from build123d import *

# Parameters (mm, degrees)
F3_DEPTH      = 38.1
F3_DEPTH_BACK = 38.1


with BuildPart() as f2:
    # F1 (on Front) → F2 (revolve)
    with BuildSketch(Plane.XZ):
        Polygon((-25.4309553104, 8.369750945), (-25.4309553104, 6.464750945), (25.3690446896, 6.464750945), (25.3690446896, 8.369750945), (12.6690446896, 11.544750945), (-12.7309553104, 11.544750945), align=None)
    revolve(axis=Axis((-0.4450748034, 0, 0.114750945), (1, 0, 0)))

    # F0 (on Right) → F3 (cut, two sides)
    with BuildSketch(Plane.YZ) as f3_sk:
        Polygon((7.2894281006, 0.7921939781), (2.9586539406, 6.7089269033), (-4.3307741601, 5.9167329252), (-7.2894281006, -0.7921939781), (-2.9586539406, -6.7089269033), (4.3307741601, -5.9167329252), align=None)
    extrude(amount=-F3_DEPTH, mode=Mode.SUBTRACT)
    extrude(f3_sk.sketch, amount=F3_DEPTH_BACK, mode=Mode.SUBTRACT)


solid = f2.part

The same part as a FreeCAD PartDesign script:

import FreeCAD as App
import Part
import Sketcher
from FreeCAD import Vector
Q = App.Units.Quantity

doc = App.newDocument("Part")
body = doc.addObject("PartDesign::Body", "Body")

sketch1 = body.newObject("Sketcher::SketchObject", "Sketch")
sketch1.AttachmentSupport = (doc.getObject("XZ_Plane"), [""])
sketch1.MapMode = "FlatFace"
sketch1.addGeometry([
    Part.LineSegment(Vector(-25.4, 8.4, 0), Vector(-25.4, 6.5, 0)),
    Part.LineSegment(Vector(-25.4, 6.5, 0), Vector(25.4, 6.5, 0)),
    Part.LineSegment(Vector(25.4, 6.5, 0), Vector(25.4, 8.4, 0)),
    Part.LineSegment(Vector(25.4, 8.4, 0), Vector(12.7, 11.5, 0)),
    Part.LineSegment(Vector(12.7, 11.5, 0), Vector(-12.7, 11.5, 0)),
    Part.LineSegment(Vector(-12.7, 11.5, 0), Vector(-25.4, 8.4, 0)),
], False)
sketch1.addGeometry(Part.LineSegment(Vector(-25.4, 0.1, 0), Vector(25.4, 0.1, 0)), True)
sketch1.addConstraint([
    Sketcher.Constraint("Coincident", 0, 2, 1, 1),
    Sketcher.Constraint("Coincident", 1, 2, 2, 1),
    Sketcher.Constraint("Coincident", 2, 2, 3, 1),
    Sketcher.Constraint("Coincident", 3, 2, 4, 1),
    Sketcher.Constraint("Coincident", 4, 2, 5, 1),
    Sketcher.Constraint("Coincident", 5, 2, 0, 1),
    Sketcher.Constraint("Vertical", 0),
    Sketcher.Constraint("Horizontal", 1),
    Sketcher.Constraint("Vertical", 2),
    Sketcher.Constraint("Horizontal", 4),
    Sketcher.Constraint("Horizontal", 6),
    Sketcher.Constraint("Horizontal", 2, 2, 5, 2),
    Sketcher.Constraint("Vertical", 5, 2, 6, 1),
    Sketcher.Constraint("Vertical", 2, 2, 6, 2),
    Sketcher.Constraint("Equal", 3, 5),
    Sketcher.Constraint("DistanceX", 1, 1, 1, 2, Q("2 in")),
    Sketcher.Constraint("DistanceX", 4, 2, 4, 1, Q("1 in")),
    Sketcher.Constraint("DistanceY", 1, 2, 3, 2, Q("0.2 in")),
    Sketcher.Constraint("DistanceY", 0, 2, 0, 1, Q("0.075 in")),
    Sketcher.Constraint("DistanceY", 6, 1, 0, 2, Q("0.25 in")),
    Sketcher.Constraint("DistanceY", -1, 1, 0, 2, 6.464751),
    Sketcher.Constraint("DistanceX", 0, 2, -1, 1, 25.430955),
])
revolution = body.newObject("PartDesign::Revolution", "Revolution")
revolution.Profile = sketch1
revolution.ReferenceAxis = (sketch1, ["Axis0"])
revolution.Angle = 360

sketch2 = body.newObject("Sketcher::SketchObject", "Sketch001")
sketch2.AttachmentSupport = (doc.getObject("YZ_Plane"), [""])
sketch2.MapMode = "FlatFace"
sketch2.addGeometry([
    Part.LineSegment(Vector(7, 1, 0), Vector(3, 7, 0)),
    Part.LineSegment(Vector(3, 7, 0), Vector(-4, 6, 0)),
    Part.LineSegment(Vector(-4, 6, 0), Vector(-7, -1, 0)),
    Part.LineSegment(Vector(-7, -1, 0), Vector(-3, -7, 0)),
    Part.LineSegment(Vector(-3, -7, 0), Vector(4, -6, 0)),
    Part.LineSegment(Vector(4, -6, 0), Vector(7, 1, 0)),
], False)
sketch2.addConstraint([
    Sketcher.Constraint("Coincident", 0, 2, 1, 1),
    Sketcher.Constraint("Coincident", 1, 2, 2, 1),
    Sketcher.Constraint("Coincident", 2, 2, 3, 1),
    Sketcher.Constraint("Coincident", 3, 2, 4, 1),
    Sketcher.Constraint("Coincident", 4, 2, 5, 1),
    Sketcher.Constraint("Coincident", 5, 2, 0, 1),
    Sketcher.Constraint("Symmetric", 0, 2, 3, 2, -1, 1),
    Sketcher.Constraint("Symmetric", 1, 2, 4, 2, -1, 1),
    Sketcher.Constraint("Symmetric", 2, 2, 5, 2, -1, 1),
    Sketcher.Constraint("Equal", 0, 1),
    Sketcher.Constraint("Equal", 1, 2),
    Sketcher.Constraint("Distance", 0, 7.332348),
    Sketcher.Constraint("DistanceX", 2, 2, -1, 1, 7.289428),
    Sketcher.Constraint("DistanceX", 1, 2, 0, 2, 7.289428),
    Sketcher.Constraint("DistanceY", 2, 2, 0, 2, 7.501121),
])
pocket1 = body.newObject("PartDesign::Pocket", "Pocket")
pocket1.Profile = sketch2
pocket1.Type = "ThroughAll"
pocket1.Midplane = True

doc.recompute()
